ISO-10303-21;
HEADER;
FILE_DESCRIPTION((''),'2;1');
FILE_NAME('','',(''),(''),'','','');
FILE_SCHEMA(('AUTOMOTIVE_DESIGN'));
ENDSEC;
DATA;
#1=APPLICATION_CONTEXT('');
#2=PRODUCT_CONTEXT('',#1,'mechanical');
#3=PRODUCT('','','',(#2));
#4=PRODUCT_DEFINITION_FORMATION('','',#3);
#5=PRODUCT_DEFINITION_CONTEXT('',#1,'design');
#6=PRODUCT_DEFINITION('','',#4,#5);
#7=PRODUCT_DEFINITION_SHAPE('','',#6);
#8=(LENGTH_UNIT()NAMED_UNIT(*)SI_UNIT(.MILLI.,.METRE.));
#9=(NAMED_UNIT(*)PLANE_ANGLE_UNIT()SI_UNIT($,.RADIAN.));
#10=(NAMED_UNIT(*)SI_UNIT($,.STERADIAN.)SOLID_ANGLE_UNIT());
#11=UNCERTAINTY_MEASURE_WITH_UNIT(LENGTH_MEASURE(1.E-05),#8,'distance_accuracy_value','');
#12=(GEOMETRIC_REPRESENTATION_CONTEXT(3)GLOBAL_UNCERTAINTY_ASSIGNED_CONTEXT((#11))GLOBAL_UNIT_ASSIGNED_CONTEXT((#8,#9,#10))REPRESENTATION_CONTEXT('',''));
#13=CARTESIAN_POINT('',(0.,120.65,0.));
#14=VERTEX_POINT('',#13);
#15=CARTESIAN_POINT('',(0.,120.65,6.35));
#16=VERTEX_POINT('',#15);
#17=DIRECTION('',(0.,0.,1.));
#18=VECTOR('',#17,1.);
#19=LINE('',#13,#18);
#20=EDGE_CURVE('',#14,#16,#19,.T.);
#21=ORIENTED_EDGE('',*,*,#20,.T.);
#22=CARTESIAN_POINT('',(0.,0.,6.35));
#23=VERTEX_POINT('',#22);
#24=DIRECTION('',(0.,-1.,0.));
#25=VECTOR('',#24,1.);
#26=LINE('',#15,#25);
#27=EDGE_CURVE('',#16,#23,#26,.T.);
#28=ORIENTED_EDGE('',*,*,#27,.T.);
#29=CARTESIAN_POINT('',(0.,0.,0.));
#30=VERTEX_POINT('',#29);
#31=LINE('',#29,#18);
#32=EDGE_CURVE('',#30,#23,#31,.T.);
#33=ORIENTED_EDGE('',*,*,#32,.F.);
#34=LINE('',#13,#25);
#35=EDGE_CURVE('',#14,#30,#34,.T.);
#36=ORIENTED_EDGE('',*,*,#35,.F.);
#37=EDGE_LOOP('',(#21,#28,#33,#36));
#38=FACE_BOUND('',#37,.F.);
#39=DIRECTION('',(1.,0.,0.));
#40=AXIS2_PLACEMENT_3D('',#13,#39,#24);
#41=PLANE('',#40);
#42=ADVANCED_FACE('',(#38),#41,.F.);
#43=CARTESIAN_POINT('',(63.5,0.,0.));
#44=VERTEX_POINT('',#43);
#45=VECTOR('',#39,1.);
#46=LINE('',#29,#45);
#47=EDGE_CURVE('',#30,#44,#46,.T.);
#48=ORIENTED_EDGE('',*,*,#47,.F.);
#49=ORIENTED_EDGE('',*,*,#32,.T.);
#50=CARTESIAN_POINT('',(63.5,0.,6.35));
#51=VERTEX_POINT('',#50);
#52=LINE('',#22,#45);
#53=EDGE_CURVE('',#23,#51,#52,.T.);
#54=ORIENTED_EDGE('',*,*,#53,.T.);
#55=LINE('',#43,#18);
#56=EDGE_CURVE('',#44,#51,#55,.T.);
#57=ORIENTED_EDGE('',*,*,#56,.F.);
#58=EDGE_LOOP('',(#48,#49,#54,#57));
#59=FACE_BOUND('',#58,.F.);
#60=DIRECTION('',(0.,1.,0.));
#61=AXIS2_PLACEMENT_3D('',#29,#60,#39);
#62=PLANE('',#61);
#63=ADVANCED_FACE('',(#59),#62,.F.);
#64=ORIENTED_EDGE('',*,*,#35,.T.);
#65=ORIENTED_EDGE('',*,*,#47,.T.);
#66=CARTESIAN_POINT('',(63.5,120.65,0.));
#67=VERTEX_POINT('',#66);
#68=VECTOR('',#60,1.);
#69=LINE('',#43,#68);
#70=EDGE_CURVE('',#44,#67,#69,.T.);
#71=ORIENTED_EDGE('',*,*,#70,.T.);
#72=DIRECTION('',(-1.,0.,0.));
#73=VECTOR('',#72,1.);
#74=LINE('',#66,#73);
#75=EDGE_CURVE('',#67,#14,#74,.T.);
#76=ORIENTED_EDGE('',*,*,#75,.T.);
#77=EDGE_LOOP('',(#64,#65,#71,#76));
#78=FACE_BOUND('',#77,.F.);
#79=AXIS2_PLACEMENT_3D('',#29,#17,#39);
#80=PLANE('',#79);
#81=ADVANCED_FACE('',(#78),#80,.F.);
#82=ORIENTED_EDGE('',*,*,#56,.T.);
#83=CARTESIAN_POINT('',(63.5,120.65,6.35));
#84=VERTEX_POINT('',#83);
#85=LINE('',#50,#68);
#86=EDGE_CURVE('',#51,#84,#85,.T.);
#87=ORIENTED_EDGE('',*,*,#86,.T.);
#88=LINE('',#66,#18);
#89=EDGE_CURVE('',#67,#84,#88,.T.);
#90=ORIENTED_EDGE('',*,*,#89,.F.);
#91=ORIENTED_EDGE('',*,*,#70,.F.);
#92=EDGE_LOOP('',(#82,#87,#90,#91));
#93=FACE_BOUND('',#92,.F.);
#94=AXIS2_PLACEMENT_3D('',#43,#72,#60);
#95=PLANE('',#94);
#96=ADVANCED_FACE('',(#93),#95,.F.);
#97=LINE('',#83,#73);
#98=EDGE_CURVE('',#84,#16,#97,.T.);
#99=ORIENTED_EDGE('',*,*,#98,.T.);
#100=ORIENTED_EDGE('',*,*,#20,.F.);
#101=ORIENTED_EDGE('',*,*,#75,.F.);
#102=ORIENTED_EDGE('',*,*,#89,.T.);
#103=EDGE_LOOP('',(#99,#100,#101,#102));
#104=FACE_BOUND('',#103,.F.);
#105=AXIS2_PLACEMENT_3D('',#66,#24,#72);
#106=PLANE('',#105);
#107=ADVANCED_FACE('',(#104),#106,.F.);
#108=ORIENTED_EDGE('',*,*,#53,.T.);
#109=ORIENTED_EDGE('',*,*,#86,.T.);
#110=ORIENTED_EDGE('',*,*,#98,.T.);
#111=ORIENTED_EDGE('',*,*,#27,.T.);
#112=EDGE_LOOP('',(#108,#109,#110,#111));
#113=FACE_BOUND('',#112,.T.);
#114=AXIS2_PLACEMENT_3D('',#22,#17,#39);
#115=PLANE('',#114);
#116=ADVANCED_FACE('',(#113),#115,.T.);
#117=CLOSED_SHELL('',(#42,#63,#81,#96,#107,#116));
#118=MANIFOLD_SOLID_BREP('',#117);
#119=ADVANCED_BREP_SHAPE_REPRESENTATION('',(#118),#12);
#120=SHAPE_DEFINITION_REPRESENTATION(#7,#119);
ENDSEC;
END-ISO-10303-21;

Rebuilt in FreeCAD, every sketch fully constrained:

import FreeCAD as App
import Part
import Sketcher

V = App.Vector
Q = App.Units.Quantity


def add_polygon(sketch, points):
    """Adds a closed chain of lines whose ends are joined by coincident constraints."""
    first, n = sketch.GeometryCount, len(points)
    for a, b in zip(points, points[1:] + points[:1]):
        sketch.addGeometry(Part.LineSegment(App.Vector(*a, 0), App.Vector(*b, 0)), False)
    for i in range(n):
        sketch.addConstraint(Sketcher.Constraint("Coincident", first + i, 2, first + (i + 1) % n, 1))

doc = App.newDocument("Part")
body = doc.addObject("PartDesign::Body", "Body")

sketch1 = doc.addObject("Sketcher::SketchObject", "Sketch")
body.addObject(sketch1)
sketch1.AttachmentSupport = (doc.XY_Plane, [""])
sketch1.MapMode = "FlatFace"
add_polygon(sketch1, [(0, 120.65), (0, 0), (63.5, 0), (63.5, 120.65)])
sketch1.addConstraint([
    Sketcher.Constraint("Vertical", 0),
    Sketcher.Constraint("Horizontal", 1),
    Sketcher.Constraint("Vertical", 2),
    Sketcher.Constraint("Horizontal", 3),
    Sketcher.Constraint("Coincident", 0, 2, -1, 1),
    Sketcher.Constraint("DistanceX", 1, 1, 1, 2, Q("2.5 in")),
    Sketcher.Constraint("DistanceY", 0, 2, 0, 1, Q("4.75 in")),
])
pad1 = doc.addObject("PartDesign::Pad", "Pad")
body.addObject(pad1)
pad1.Profile = sketch1
pad1.Length = Q("0.25 in")

doc.recompute()
